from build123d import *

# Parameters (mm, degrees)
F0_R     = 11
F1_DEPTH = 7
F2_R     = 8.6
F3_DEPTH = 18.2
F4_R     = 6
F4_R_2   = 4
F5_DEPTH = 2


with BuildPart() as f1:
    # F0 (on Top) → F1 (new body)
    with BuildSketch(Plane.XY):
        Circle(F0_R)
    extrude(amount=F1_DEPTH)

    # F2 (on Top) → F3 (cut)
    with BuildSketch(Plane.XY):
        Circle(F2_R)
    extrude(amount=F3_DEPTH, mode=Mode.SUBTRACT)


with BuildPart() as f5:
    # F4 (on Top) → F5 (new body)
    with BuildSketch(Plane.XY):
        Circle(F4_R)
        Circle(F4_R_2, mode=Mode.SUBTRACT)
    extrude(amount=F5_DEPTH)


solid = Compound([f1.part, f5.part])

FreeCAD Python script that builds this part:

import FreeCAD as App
import Part
import Sketcher

V = App.Vector
Q = App.Units.Quantity

doc = App.newDocument("Part")
body = doc.addObject("PartDesign::Body", "Body")

sketch1 = body.newObject("Sketcher::SketchObject", "Sketch")
sketch1.AttachmentSupport = (doc.getObject("XY_Plane"), [""])
sketch1.MapMode = "FlatFace"
sketch1.addGeometry(Part.Circle(V(0, 0, 0), V(0, 0, 1), 11), False)
sketch1.addConstraint([
    Sketcher.Constraint("Coincident", 0, 3, -1, 1),
    Sketcher.Constraint("Diameter", 0, Q("22 mm")),
])
pad1 = body.newObject("PartDesign::Pad", "Pad")
pad1.Profile = sketch1
pad1.Length = 7

sketch2 = body.newObject("Sketcher::SketchObject", "Sketch001")
sketch2.AttachmentSupport = (doc.getObject("XY_Plane"), [""])
sketch2.MapMode = "FlatFace"
sketch2.addGeometry(Part.Circle(V(0, 0, 0), V(0, 0, 1), 9), False)
sketch2.addConstraint([
    Sketcher.Constraint("Coincident", 0, 3, -1, 1),
    Sketcher.Constraint("Diameter", 0, Q("17.2 mm")),
])
pocket1 = body.newObject("PartDesign::Pocket", "Pocket")
pocket1.Profile = sketch2
pocket1.Length = 18.2
pocket1.Reversed = True
body2 = doc.addObject("PartDesign::Body", "Body001")

sketch3 = body2.newObject("Sketcher::SketchObject", "Sketch002")
sketch3.AttachmentSupport = (doc.getObject("XY_Plane001"), [""])
sketch3.MapMode = "FlatFace"
sketch3.addGeometry([
    Part.Circle(V(0, 0, 0), V(0, 0, 1), 6),
    Part.Circle(V(0, 0, 0), V(0, 0, 1), 4),
], False)
sketch3.addConstraint([
    Sketcher.Constraint("Coincident", 0, 3, -1, 1),
    Sketcher.Constraint("Coincident", 1, 3, -1, 1),
    Sketcher.Constraint("Diameter", 0, Q("12 mm")),
    Sketcher.Constraint("Diameter", 1, Q("8 mm")),
])
pad2 = body2.newObject("PartDesign::Pad", "Pad001")
pad2.Profile = sketch3
pad2.Length = 2

doc.recompute()
